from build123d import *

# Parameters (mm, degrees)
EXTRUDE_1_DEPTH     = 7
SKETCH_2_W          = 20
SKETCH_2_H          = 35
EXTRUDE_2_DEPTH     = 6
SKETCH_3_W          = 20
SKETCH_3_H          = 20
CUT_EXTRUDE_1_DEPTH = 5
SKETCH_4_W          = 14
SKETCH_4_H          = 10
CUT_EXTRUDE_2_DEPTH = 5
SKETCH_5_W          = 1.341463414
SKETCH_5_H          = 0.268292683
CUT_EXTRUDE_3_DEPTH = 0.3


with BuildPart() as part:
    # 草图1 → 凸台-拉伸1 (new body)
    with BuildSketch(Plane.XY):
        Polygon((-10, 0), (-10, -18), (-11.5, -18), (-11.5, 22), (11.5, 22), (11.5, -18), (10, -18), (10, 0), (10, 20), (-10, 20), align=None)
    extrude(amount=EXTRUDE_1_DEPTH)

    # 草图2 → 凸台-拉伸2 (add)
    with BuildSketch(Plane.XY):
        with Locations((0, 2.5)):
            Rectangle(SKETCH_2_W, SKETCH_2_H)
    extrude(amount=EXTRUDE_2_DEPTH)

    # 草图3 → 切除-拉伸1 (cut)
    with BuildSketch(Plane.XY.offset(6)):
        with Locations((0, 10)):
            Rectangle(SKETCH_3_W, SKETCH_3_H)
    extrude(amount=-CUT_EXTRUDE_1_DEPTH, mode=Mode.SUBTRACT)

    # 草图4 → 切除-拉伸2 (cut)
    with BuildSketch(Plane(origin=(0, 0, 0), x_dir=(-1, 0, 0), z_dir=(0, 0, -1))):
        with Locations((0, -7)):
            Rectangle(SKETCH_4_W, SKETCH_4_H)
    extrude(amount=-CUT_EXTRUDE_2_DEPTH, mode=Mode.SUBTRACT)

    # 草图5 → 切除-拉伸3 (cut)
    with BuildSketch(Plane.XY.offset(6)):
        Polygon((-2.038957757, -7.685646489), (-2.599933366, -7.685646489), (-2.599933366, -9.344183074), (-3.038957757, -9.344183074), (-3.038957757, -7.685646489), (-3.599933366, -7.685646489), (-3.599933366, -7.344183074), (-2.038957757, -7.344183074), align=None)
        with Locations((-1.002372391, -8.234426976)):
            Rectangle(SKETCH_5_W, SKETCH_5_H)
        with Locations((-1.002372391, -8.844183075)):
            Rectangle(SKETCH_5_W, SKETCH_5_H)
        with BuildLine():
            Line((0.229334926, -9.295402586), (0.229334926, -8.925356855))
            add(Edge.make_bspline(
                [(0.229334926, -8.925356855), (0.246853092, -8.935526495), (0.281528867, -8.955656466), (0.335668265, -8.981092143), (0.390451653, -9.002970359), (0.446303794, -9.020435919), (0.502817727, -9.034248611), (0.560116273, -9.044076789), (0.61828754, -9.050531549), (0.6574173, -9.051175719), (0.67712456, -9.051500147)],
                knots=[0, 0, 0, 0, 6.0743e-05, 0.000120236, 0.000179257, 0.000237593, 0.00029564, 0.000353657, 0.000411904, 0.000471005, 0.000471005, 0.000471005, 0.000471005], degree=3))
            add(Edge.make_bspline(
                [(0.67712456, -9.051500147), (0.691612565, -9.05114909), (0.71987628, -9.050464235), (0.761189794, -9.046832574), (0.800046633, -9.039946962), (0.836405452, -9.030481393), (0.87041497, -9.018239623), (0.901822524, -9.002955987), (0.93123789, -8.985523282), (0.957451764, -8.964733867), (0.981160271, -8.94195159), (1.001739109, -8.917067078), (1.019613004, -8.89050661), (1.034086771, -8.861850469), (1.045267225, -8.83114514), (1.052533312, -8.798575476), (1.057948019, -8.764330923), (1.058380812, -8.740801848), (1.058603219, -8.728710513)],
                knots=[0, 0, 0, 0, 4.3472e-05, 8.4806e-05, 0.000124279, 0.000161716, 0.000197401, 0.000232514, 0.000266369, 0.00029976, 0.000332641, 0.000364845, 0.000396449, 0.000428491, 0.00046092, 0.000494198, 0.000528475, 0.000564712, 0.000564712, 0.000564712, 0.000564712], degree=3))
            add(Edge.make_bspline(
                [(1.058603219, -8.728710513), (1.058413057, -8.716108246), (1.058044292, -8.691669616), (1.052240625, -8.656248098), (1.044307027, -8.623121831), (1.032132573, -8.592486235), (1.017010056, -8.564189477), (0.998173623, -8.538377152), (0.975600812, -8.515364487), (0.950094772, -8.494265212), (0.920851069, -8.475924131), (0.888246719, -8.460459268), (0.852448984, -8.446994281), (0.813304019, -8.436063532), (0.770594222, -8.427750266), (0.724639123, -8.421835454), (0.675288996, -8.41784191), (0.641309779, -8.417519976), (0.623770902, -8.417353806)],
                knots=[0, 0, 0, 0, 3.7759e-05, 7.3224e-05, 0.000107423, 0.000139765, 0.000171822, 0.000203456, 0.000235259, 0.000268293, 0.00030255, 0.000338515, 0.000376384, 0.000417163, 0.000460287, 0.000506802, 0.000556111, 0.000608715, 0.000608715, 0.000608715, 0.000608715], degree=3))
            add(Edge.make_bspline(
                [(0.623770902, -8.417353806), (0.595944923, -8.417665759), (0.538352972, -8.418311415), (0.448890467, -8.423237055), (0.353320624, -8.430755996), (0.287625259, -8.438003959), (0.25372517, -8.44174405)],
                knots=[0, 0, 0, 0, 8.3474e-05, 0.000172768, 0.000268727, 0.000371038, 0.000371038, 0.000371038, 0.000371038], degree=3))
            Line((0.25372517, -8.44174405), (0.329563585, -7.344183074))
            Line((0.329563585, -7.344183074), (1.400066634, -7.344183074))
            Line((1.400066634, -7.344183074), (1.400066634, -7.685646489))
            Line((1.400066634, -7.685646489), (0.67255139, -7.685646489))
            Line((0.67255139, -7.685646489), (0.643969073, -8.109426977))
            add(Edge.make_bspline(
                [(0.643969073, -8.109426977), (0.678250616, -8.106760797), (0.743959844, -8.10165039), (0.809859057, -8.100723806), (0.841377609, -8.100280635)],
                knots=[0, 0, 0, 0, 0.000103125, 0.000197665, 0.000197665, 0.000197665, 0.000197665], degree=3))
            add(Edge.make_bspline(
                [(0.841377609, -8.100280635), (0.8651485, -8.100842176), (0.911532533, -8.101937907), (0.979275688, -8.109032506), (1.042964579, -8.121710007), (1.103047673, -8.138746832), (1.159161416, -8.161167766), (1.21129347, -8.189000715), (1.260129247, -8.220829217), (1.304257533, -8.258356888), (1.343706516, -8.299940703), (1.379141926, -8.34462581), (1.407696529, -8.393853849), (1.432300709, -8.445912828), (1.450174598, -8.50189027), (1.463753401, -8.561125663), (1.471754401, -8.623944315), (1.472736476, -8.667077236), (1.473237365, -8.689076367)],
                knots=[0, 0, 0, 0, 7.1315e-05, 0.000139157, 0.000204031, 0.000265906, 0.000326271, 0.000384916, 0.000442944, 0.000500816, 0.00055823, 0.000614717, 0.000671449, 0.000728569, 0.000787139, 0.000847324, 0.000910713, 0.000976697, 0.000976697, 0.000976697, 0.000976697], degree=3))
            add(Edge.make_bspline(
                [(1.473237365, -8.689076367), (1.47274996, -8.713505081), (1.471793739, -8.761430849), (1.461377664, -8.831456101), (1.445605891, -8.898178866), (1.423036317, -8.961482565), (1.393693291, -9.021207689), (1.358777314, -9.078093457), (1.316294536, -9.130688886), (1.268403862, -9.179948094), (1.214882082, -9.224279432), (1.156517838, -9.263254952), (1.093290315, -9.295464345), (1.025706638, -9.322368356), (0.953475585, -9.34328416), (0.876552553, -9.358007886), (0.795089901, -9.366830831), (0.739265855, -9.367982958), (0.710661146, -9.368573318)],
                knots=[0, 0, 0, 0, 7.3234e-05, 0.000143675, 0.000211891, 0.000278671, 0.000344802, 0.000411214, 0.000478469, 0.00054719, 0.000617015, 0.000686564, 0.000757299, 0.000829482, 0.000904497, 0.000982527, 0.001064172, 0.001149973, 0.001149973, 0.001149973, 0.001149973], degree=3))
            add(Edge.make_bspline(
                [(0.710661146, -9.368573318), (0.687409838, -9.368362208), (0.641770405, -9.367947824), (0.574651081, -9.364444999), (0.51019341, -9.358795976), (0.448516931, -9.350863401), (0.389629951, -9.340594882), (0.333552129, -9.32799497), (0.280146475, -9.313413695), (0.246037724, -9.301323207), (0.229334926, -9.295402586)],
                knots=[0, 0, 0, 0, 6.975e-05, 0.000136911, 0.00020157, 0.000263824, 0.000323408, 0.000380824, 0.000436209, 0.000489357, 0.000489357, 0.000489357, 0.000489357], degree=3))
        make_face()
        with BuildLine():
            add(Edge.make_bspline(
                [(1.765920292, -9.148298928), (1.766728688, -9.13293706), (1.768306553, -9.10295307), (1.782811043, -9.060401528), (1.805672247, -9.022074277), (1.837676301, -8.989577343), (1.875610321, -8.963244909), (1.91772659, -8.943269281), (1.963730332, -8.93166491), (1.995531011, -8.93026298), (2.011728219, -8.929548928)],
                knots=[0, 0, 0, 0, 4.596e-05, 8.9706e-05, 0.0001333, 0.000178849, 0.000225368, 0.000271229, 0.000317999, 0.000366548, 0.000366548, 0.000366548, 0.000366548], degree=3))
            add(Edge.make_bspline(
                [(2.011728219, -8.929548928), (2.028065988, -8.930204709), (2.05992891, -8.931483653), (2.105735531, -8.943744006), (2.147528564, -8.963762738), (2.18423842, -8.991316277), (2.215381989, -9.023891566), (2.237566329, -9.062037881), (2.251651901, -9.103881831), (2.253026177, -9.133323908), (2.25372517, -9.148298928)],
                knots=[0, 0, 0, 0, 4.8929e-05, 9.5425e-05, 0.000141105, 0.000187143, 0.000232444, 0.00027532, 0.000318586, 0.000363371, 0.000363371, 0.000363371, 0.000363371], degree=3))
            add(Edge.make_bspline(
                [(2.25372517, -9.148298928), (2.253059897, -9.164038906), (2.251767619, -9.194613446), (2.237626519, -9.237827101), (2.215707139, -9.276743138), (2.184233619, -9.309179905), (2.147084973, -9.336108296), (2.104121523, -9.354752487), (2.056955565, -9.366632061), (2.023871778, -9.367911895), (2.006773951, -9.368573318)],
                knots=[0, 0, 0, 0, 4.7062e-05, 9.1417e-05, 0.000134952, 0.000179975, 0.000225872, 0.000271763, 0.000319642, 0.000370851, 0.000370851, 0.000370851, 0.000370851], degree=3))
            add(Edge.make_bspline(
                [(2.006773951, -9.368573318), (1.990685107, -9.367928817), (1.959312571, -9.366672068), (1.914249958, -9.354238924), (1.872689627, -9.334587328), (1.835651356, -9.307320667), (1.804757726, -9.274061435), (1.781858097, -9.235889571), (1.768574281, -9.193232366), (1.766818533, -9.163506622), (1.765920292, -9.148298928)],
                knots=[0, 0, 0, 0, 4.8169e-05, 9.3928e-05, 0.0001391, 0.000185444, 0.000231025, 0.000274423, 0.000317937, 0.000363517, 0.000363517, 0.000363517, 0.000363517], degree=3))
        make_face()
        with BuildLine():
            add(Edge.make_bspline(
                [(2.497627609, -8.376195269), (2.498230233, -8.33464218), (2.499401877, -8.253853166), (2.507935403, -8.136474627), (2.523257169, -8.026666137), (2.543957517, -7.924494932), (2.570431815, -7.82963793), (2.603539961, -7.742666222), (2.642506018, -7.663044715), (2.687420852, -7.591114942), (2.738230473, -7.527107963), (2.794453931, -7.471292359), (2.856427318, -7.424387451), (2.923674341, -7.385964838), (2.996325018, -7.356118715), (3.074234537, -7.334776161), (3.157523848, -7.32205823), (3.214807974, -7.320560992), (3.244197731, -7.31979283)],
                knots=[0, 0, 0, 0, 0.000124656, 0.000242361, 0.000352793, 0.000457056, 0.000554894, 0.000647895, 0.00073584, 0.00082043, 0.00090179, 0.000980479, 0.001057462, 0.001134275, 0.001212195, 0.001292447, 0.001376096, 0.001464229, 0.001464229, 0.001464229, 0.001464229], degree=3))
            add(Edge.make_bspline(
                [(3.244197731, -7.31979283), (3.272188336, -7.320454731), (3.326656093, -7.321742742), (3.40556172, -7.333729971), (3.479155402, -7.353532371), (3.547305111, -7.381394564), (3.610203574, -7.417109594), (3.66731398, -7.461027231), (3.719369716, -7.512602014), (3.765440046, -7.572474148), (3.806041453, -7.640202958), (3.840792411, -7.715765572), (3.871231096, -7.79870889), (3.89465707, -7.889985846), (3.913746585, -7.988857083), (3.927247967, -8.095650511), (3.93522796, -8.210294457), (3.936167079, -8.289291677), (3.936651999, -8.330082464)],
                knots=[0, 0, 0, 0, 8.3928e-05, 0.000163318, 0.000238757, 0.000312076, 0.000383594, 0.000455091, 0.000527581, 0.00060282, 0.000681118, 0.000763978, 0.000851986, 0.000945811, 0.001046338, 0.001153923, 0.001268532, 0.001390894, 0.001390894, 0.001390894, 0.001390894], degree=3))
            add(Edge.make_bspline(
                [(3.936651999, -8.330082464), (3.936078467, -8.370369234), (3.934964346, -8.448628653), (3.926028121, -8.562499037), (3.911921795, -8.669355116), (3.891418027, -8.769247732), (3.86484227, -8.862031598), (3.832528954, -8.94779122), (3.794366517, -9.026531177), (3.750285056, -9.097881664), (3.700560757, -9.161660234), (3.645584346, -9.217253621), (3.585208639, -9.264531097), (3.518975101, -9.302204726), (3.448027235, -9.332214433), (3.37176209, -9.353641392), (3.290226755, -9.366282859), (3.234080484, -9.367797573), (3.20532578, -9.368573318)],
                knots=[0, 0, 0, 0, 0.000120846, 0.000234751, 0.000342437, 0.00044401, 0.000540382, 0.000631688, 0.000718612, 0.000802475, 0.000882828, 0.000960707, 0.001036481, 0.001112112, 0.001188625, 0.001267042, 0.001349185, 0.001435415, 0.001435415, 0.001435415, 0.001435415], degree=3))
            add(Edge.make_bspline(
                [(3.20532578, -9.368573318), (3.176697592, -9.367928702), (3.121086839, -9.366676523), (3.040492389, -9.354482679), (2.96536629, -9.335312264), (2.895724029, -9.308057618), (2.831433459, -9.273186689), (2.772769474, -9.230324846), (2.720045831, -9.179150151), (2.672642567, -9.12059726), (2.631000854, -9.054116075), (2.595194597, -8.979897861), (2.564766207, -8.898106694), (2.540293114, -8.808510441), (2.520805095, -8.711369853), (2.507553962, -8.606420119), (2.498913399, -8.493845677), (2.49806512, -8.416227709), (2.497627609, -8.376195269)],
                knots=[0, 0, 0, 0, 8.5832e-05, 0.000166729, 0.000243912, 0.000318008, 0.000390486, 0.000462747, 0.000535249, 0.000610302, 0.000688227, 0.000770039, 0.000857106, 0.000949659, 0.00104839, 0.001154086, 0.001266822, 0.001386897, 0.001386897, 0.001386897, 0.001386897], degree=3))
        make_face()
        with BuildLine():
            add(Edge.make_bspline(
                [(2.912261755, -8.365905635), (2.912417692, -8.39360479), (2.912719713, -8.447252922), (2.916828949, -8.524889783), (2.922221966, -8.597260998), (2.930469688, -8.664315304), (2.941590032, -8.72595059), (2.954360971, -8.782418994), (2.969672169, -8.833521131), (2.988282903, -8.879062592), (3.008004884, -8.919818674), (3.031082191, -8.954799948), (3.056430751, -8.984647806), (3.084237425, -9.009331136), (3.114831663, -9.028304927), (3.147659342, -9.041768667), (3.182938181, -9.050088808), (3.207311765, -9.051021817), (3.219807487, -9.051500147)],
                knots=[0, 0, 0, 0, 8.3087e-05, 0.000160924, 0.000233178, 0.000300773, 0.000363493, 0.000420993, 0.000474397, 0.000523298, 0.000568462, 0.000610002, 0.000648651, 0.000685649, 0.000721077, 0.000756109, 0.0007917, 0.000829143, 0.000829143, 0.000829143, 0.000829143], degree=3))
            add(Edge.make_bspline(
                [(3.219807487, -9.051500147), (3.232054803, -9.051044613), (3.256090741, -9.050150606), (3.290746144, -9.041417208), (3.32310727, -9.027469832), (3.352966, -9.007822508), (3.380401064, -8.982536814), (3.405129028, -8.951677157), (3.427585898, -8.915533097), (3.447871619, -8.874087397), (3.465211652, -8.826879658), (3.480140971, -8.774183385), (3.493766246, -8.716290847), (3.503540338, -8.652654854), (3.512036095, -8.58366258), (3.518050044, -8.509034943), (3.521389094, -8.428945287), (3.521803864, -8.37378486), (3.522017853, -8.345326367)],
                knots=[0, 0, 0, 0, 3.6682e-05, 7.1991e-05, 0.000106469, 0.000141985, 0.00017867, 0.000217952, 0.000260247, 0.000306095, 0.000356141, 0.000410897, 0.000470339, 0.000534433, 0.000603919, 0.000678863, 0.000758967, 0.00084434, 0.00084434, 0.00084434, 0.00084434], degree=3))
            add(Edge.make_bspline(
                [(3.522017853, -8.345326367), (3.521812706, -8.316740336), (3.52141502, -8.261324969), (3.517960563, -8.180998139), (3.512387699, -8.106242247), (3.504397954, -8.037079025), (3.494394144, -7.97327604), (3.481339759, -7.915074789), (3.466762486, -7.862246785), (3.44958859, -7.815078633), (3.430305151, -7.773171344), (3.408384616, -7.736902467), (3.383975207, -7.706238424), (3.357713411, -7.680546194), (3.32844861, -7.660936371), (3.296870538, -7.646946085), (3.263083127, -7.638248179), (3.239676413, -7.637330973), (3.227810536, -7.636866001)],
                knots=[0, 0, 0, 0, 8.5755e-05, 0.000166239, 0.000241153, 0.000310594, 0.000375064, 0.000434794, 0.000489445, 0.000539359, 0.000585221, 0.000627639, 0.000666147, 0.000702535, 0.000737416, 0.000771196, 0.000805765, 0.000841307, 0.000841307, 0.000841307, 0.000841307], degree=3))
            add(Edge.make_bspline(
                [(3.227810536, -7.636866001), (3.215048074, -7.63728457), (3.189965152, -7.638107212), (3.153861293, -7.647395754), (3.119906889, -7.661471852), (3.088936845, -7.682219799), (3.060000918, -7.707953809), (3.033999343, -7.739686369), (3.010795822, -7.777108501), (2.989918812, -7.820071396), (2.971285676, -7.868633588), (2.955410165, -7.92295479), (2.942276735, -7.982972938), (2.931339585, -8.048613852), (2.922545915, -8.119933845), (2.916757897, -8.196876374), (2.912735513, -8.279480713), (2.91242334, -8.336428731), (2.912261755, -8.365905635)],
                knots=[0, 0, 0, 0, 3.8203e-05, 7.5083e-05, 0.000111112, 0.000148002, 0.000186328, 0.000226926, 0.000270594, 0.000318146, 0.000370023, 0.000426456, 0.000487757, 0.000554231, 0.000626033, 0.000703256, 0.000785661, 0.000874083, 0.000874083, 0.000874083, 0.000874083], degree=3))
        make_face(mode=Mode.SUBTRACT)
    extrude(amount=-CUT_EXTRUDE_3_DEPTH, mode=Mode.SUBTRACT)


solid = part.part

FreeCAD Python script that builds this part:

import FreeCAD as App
import Part
import Sketcher
Q = App.Units.Quantity


def add_polygon(sketch, points):
    """Adds a closed chain of lines whose ends are joined by coincident constraints."""
    first, n = sketch.GeometryCount, len(points)
    for a, b in zip(points, points[1:] + points[:1]):
        sketch.addGeometry(Part.LineSegment(App.Vector(*a, 0), App.Vector(*b, 0)), False)
    for i in range(n):
        sketch.addConstraint(Sketcher.Constraint("Coincident", first + i, 2, first + (i + 1) % n, 1))

doc = App.newDocument("Part")
body = doc.addObject("PartDesign::Body", "Body")

# Sketch on XY plane
sketch1 = body.newObject("Sketcher::SketchObject", "Sketch")
sketch1.AttachmentSupport = (doc.getObject("XY_Plane"), [""])
sketch1.MapMode = "FlatFace"
add_polygon(sketch1, [(-10, -18), (-10, 20), (10, 20), (10, -18), (11.5, -18), (11.5, 22), (-11.5, 22), (-11.5, -18)])  # lines 0-7
sketch1.addConstraint([
    Sketcher.Constraint("Vertical", 0),
    Sketcher.Constraint("Horizontal", 1),
    Sketcher.Constraint("Vertical", 2),
    Sketcher.Constraint("Horizontal", 3),
    Sketcher.Constraint("Vertical", 4),
    Sketcher.Constraint("Horizontal", 5),
    Sketcher.Constraint("Vertical", 6),
    Sketcher.Constraint("Horizontal", 7),
    Sketcher.Constraint("Symmetric", 3, 2, 6, 2, -2),
    Sketcher.Constraint("Equal", 3, 7),
    Sketcher.Constraint("DistanceX", 1, 1, 1, 2, Q("20 mm")),
    Sketcher.Constraint("DistanceX", 5, 2, 5, 1, Q("23 mm")),
    Sketcher.Constraint("DistanceY", 0, 1, 0, 2, Q("38 mm")),
    Sketcher.Constraint("DistanceY", 4, 1, 4, 2, Q("40 mm")),
    Sketcher.Constraint("DistanceY", -1, 1, 0, 2, Q("20 mm")),
])
pad1 = body.newObject("PartDesign::Pad", "Pad")
pad1.Profile = sketch1
pad1.Length = 7

# Sketch on XY plane
sketch2 = body.newObject("Sketcher::SketchObject", "Sketch001")
sketch2.AttachmentSupport = (doc.getObject("XY_Plane"), [""])
sketch2.MapMode = "FlatFace"
add_polygon(sketch2, [(-10, 20), (-10, -15), (10, -15), (10, 20)])  # lines 0-3
sketch2.addConstraint([
    Sketcher.Constraint("Vertical", 0),
    Sketcher.Constraint("Horizontal", 1),
    Sketcher.Constraint("Vertical", 2),
    Sketcher.Constraint("Horizontal", 3),
    Sketcher.Constraint("DistanceX", 1, 1, 1, 2, Q("20 mm")),
    Sketcher.Constraint("DistanceY", 0, 2, 0, 1, Q("35 mm")),
    Sketcher.Constraint("DistanceX", 0, 2, -1, 1, Q("10 mm")),
    Sketcher.Constraint("DistanceY", 0, 2, -1, 1, Q("15 mm")),
])
pad2 = body.newObject("PartDesign::Pad", "Pad001")
pad2.Profile = sketch2
pad2.Length = 6

# Sketch on XY plane
sketch3 = body.newObject("Sketcher::SketchObject", "Sketch002")
sketch3.AttachmentSupport = (doc.getObject("XY_Plane"), [""])
sketch3.MapMode = "FlatFace"
sketch3.AttachmentOffset = App.Placement(App.Vector(0, 0, 6), App.Rotation())
add_polygon(sketch3, [(-10, 20), (-10, 0), (10, 0), (10, 20)])  # lines 0-3
sketch3.addConstraint([
    Sketcher.Constraint("Vertical", 0),
    Sketcher.Constraint("Horizontal", 1),
    Sketcher.Constraint("Vertical", 2),
    Sketcher.Constraint("Horizontal", 3),
    Sketcher.Constraint("Symmetric", 0, 2, 1, 2, -1, 1),
    Sketcher.Constraint("Equal", 3, 0),
    Sketcher.Constraint("DistanceX", 1, 1, 1, 2, Q("20 mm")),
])
pocket1 = body.newObject("PartDesign::Pocket", "Pocket")
pocket1.Profile = sketch3
pocket1.Length = 5

# Sketch on XY plane
sketch4 = body.newObject("Sketcher::SketchObject", "Sketch003")
sketch4.AttachmentSupport = (doc.getObject("XY_Plane"), [""])
sketch4.MapMode = "FlatFace"
add_polygon(sketch4, [(7, -2), (7, -12), (-7, -12), (-7, -2)])  # lines 0-3
sketch4.addConstraint([
    Sketcher.Constraint("Vertical", 0),
    Sketcher.Constraint("Horizontal", 1),
    Sketcher.Constraint("Vertical", 2),
    Sketcher.Constraint("Horizontal", 3),
    Sketcher.Constraint("DistanceX", 1, 2, 1, 1, Q("14 mm")),
    Sketcher.Constraint("DistanceY", 0, 2, 0, 1, Q("10 mm")),
    Sketcher.Constraint("DistanceX", -1, 1, 0, 2, Q("7 mm")),
    Sketcher.Constraint("DistanceY", 0, 2, -1, 1, Q("12 mm")),
])
pocket2 = body.newObject("PartDesign::Pocket", "Pocket001")
pocket2.Profile = sketch4
pocket2.Length = 5
pocket2.Reversed = True

# Sketch on XY plane
sketch5 = body.newObject("Sketcher::SketchObject", "Sketch004")
sketch5.AttachmentSupport = (doc.getObject("XY_Plane"), [""])
sketch5.MapMode = "FlatFace"
sketch5.AttachmentOffset = App.Placement(App.Vector(0, 0, 6), App.Rotation())
add_polygon(sketch5, [(-2.599933, -7.685646), (-2.038958, -7.685646), (-2.038958, -7.344183), (-3.599933, -7.344183), (-3.599933, -7.685646), (-3.038958, -7.685646), (-3.038958, -9.344183), (-2.599933, -9.344183)])  # lines 0-7
add_polygon(sketch5, [(-1.673104, -8.100281), (-1.673104, -8.368573), (-0.331641, -8.368573), (-0.331641, -8.100281)])  # lines 8-11
add_polygon(sketch5, [(-1.673104, -8.710037), (-1.673104, -8.978329), (-0.331641, -8.978329), (-0.331641, -8.710037)])  # lines 12-15
sketch5.addGeometry(Part.LineSegment(App.Vector(0.229335, -8.925357, 0), App.Vector(0.229335, -9.295403, 0)), False)  # 16
sketch5.addGeometry(Part.BSplineCurve([App.Vector(0.710661, -9.368573, 0), App.Vector(0.68741, -9.368362, 0), App.Vector(0.64177, -9.367948, 0), App.Vector(0.574651, -9.364445, 0), App.Vector(0.510193, -9.358796, 0), App.Vector(0.448517, -9.350863, 0), App.Vector(0.38963, -9.340595, 0), App.Vector(0.333552, -9.327995, 0), App.Vector(0.280146, -9.313414, 0), App.Vector(0.246038, -9.301323, 0), App.Vector(0.229335, -9.295403, 0)], [4, 1, 1, 1, 1, 1, 1, 1, 4], [0, 0.00006975, 0.000136911, 0.00020157, 0.000263824, 0.000323408, 0.000380824, 0.000436209, 0.000489357], False, 3, [1, 1, 1, 1, 1, 1, 1, 1, 1, 1, 1], False), False)  # 17
sketch5.addGeometry(Part.BSplineCurve([App.Vector(1.473237, -8.689076, 0), App.Vector(1.47275, -8.713505, 0), App.Vector(1.471794, -8.761431, 0), App.Vector(1.461378, -8.831456, 0), App.Vector(1.445606, -8.898179, 0), App.Vector(1.423036, -8.961483, 0), App.Vector(1.393693, -9.021208, 0), App.Vector(1.358777, -9.078093, 0), App.Vector(1.316295, -9.130689, 0), App.Vector(1.268404, -9.179948, 0), App.Vector(1.214882, -9.224279, 0), App.Vector(1.156518, -9.263255, 0), App.Vector(1.09329, -9.295464, 0), App.Vector(1.025707, -9.322368, 0), App.Vector(0.953476, -9.343284, 0), App.Vector(0.876553, -9.358008, 0), App.Vector(0.79509, -9.366831, 0), App.Vector(0.739266, -9.367983, 0), App.Vector(0.710661, -9.368573, 0)], [4, 1, 1, 1, 1, 1, 1, 1, 1, 1, 1, 1, 1, 1, 1, 1, 4], [0, 0.000073234, 0.000143675, 0.000211891, 0.000278671, 0.000344802, 0.000411214, 0.000478469, 0.00054719, 0.000617015, 0.000686564, 0.000757299, 0.000829482, 0.000904497, 0.000982527, 0.001064172, 0.001149973], False, 3, [1, 1, 1, 1, 1, 1, 1, 1, 1, 1, 1, 1, 1, 1, 1, 1, 1, 1, 1], False), False)  # 18
sketch5.addGeometry(Part.BSplineCurve([App.Vector(0.841378, -8.100281, 0), App.Vector(0.865148, -8.100842, 0), App.Vector(0.911533, -8.101938, 0), App.Vector(0.979276, -8.109033, 0), App.Vector(1.042965, -8.12171, 0), App.Vector(1.103048, -8.138747, 0), App.Vector(1.159161, -8.161168, 0), App.Vector(1.211293, -8.189001, 0), App.Vector(1.260129, -8.220829, 0), App.Vector(1.304258, -8.258357, 0), App.Vector(1.343707, -8.299941, 0), App.Vector(1.379142, -8.344626, 0), App.Vector(1.407697, -8.393854, 0), App.Vector(1.432301, -8.445913, 0), App.Vector(1.450175, -8.50189, 0), App.Vector(1.463753, -8.561126, 0), App.Vector(1.471754, -8.623944, 0), App.Vector(1.472736, -8.667077, 0), App.Vector(1.473237, -8.689076, 0)], [4, 1, 1, 1, 1, 1, 1, 1, 1, 1, 1, 1, 1, 1, 1, 1, 4], [0, 0.000071315, 0.000139157, 0.000204031, 0.000265906, 0.000326271, 0.000384916, 0.000442944, 0.000500816, 0.00055823, 0.000614717, 0.000671449, 0.000728569, 0.000787139, 0.000847324, 0.000910713, 0.000976697], False, 3, [1, 1, 1, 1, 1, 1, 1, 1, 1, 1, 1, 1, 1, 1, 1, 1, 1, 1, 1], False), False)  # 19
sketch5.addGeometry(Part.BSplineCurve([App.Vector(0.643969, -8.109427, 0), App.Vector(0.678251, -8.106761, 0), App.Vector(0.74396, -8.10165, 0), App.Vector(0.809859, -8.100724, 0), App.Vector(0.841378, -8.100281, 0)], [4, 1, 4], [0, 0.000103125, 0.000197665], False, 3, [1, 1, 1, 1, 1], False), False)  # 20
sketch5.addGeometry(Part.LineSegment(App.Vector(0.643969, -8.109427, 0), App.Vector(0.672551, -7.685646, 0)), False)  # 21
sketch5.addGeometry(Part.LineSegment(App.Vector(0.672551, -7.685646, 0), App.Vector(1.400067, -7.685646, 0)), False)  # 22
sketch5.addGeometry(Part.LineSegment(App.Vector(1.400067, -7.685646, 0), App.Vector(1.400067, -7.344183, 0)), False)  # 23
sketch5.addGeometry(Part.LineSegment(App.Vector(1.400067, -7.344183, 0), App.Vector(0.329564, -7.344183, 0)), False)  # 24
sketch5.addGeometry(Part.LineSegment(App.Vector(0.329564, -7.344183, 0), App.Vector(0.253725, -8.441744, 0)), False)  # 25
sketch5.addGeometry(Part.BSplineCurve([App.Vector(0.623771, -8.417354, 0), App.Vector(0.595945, -8.417666, 0), App.Vector(0.538353, -8.418311, 0), App.Vector(0.44889, -8.423237, 0), App.Vector(0.353321, -8.430756, 0), App.Vector(0.287625, -8.438004, 0), App.Vector(0.253725, -8.441744, 0)], [4, 1, 1, 1, 4], [0, 0.000083474, 0.000172768, 0.000268727, 0.000371038], False, 3, [1, 1, 1, 1, 1, 1, 1], False), False)  # 26
sketch5.addGeometry(Part.BSplineCurve([App.Vector(1.058603, -8.728711, 0), App.Vector(1.058413, -8.716108, 0), App.Vector(1.058044, -8.69167, 0), App.Vector(1.052241, -8.656248, 0), App.Vector(1.044307, -8.623122, 0), App.Vector(1.032133, -8.592486, 0), App.Vector(1.01701, -8.564189, 0), App.Vector(0.998174, -8.538377, 0), App.Vector(0.975601, -8.515364, 0), App.Vector(0.950095, -8.494265, 0), App.Vector(0.920851, -8.475924, 0), App.Vector(0.888247, -8.460459, 0), App.Vector(0.852449, -8.446994, 0), App.Vector(0.813304, -8.436064, 0), App.Vector(0.770594, -8.42775, 0), App.Vector(0.724639, -8.421835, 0), App.Vector(0.675289, -8.417842, 0), App.Vector(0.64131, -8.41752, 0), App.Vector(0.623771, -8.417354, 0)], [4, 1, 1, 1, 1, 1, 1, 1, 1, 1, 1, 1, 1, 1, 1, 1, 4], [0, 0.000037759, 0.000073224, 0.000107423, 0.000139765, 0.000171822, 0.000203456, 0.000235259, 0.000268293, 0.00030255, 0.000338515, 0.000376384, 0.000417163, 0.000460287, 0.000506802, 0.000556111, 0.000608715], False, 3, [1, 1, 1, 1, 1, 1, 1, 1, 1, 1, 1, 1, 1, 1, 1, 1, 1, 1, 1], False), False)  # 27
sketch5.addGeometry(Part.BSplineCurve([App.Vector(0.677125, -9.0515, 0), App.Vector(0.691613, -9.051149, 0), App.Vector(0.719876, -9.050464, 0), App.Vector(0.76119, -9.046833, 0), App.Vector(0.800047, -9.039947, 0), App.Vector(0.836405, -9.030481, 0), App.Vector(0.870415, -9.01824, 0), App.Vector(0.901823, -9.002956, 0), App.Vector(0.931238, -8.985523, 0), App.Vector(0.957452, -8.964734, 0), App.Vector(0.98116, -8.941952, 0), App.Vector(1.001739, -8.917067, 0), App.Vector(1.019613, -8.890507, 0), App.Vector(1.034087, -8.86185, 0), App.Vector(1.045267, -8.831145, 0), App.Vector(1.052533, -8.798575, 0), App.Vector(1.057948, -8.764331, 0), App.Vector(1.058381, -8.740802, 0), App.Vector(1.058603, -8.728711, 0)], [4, 1, 1, 1, 1, 1, 1, 1, 1, 1, 1, 1, 1, 1, 1, 1, 4], [0, 0.000043472, 0.000084806, 0.000124279, 0.000161716, 0.000197401, 0.000232514, 0.000266369, 0.00029976, 0.000332641, 0.000364845, 0.000396449, 0.000428491, 0.00046092, 0.000494198, 0.000528475, 0.000564712], False, 3, [1, 1, 1, 1, 1, 1, 1, 1, 1, 1, 1, 1, 1, 1, 1, 1, 1, 1, 1], False), False)  # 28
sketch5.addGeometry(Part.BSplineCurve([App.Vector(0.229335, -8.925357, 0), App.Vector(0.246853, -8.935526, 0), App.Vector(0.281529, -8.955656, 0), App.Vector(0.335668, -8.981092, 0), App.Vector(0.390452, -9.00297, 0), App.Vector(0.446304, -9.020436, 0), App.Vector(0.502818, -9.034249, 0), App.Vector(0.560116, -9.044077, 0), App.Vector(0.618288, -9.050532, 0), App.Vector(0.657417, -9.051176, 0), App.Vector(0.677125, -9.0515, 0)], [4, 1, 1, 1, 1, 1, 1, 1, 4], [0, 0.000060743, 0.000120236, 0.000179257, 0.000237593, 0.00029564, 0.000353657, 0.000411904, 0.000471005], False, 3, [1, 1, 1, 1, 1, 1, 1, 1, 1, 1, 1], False), False)  # 29
sketch5.addGeometry(Part.BSplineCurve([App.Vector(1.76592, -9.148299, 0), App.Vector(1.766729, -9.132937, 0), App.Vector(1.768307, -9.102953, 0), App.Vector(1.782811, -9.060402, 0), App.Vector(1.805672, -9.022074, 0), App.Vector(1.837676, -8.989577, 0), App.Vector(1.87561, -8.963245, 0), App.Vector(1.917727, -8.943269, 0), App.Vector(1.96373, -8.931665, 0), App.Vector(1.995531, -8.930263, 0), App.Vector(2.011728, -8.929549, 0)], [4, 1, 1, 1, 1, 1, 1, 1, 4], [0, 0.00004596, 0.000089706, 0.0001333, 0.000178849, 0.000225368, 0.000271229, 0.000317999, 0.000366548], False, 3, [1, 1, 1, 1, 1, 1, 1, 1, 1, 1, 1], False), False)  # 30
sketch5.addGeometry(Part.BSplineCurve([App.Vector(2.006774, -9.368573, 0), App.Vector(1.990685, -9.367929, 0), App.Vector(1.959313, -9.366672, 0), App.Vector(1.91425, -9.354239, 0), App.Vector(1.87269, -9.334587, 0), App.Vector(1.835651, -9.307321, 0), App.Vector(1.804758, -9.274061, 0), App.Vector(1.781858, -9.23589, 0), App.Vector(1.768574, -9.193232, 0), App.Vector(1.766819, -9.163507, 0), App.Vector(1.76592, -9.148299, 0)], [4, 1, 1, 1, 1, 1, 1, 1, 4], [0, 0.000048169, 0.000093928, 0.0001391, 0.000185444, 0.000231025, 0.000274423, 0.000317937, 0.000363517], False, 3, [1, 1, 1, 1, 1, 1, 1, 1, 1, 1, 1], False), False)  # 31
sketch5.addGeometry(Part.BSplineCurve([App.Vector(2.253725, -9.148299, 0), App.Vector(2.25306, -9.164039, 0), App.Vector(2.251768, -9.194613, 0), App.Vector(2.237627, -9.237827, 0), App.Vector(2.215707, -9.276743, 0), App.Vector(2.184234, -9.30918, 0), App.Vector(2.147085, -9.336108, 0), App.Vector(2.104122, -9.354752, 0), App.Vector(2.056956, -9.366632, 0), App.Vector(2.023872, -9.367912, 0), App.Vector(2.006774, -9.368573, 0)], [4, 1, 1, 1, 1, 1, 1, 1, 4], [0, 0.000047062, 0.000091417, 0.000134952, 0.000179975, 0.000225872, 0.000271763, 0.000319642, 0.000370851], False, 3, [1, 1, 1, 1, 1, 1, 1, 1, 1, 1, 1], False), False)  # 32
sketch5.addGeometry(Part.BSplineCurve([App.Vector(2.011728, -8.929549, 0), App.Vector(2.028066, -8.930205, 0), App.Vector(2.059929, -8.931484, 0), App.Vector(2.105736, -8.943744, 0), App.Vector(2.147529, -8.963763, 0), App.Vector(2.184238, -8.991316, 0), App.Vector(2.215382, -9.023892, 0), App.Vector(2.237566, -9.062038, 0), App.Vector(2.251652, -9.103882, 0), App.Vector(2.253026, -9.133324, 0), App.Vector(2.253725, -9.148299, 0)], [4, 1, 1, 1, 1, 1, 1, 1, 4], [0, 0.000048929, 0.000095425, 0.000141105, 0.000187143, 0.000232444, 0.00027532, 0.000318586, 0.000363371], False, 3, [1, 1, 1, 1, 1, 1, 1, 1, 1, 1, 1], False), False)  # 33
sketch5.addGeometry(Part.BSplineCurve([App.Vector(2.497628, -8.376195, 0), App.Vector(2.49823, -8.334642, 0), App.Vector(2.499402, -8.253853, 0), App.Vector(2.507935, -8.136475, 0), App.Vector(2.523257, -8.026666, 0), App.Vector(2.543958, -7.924495, 0), App.Vector(2.570432, -7.829638, 0), App.Vector(2.60354, -7.742666, 0), App.Vector(2.642506, -7.663045, 0), App.Vector(2.687421, -7.591115, 0), App.Vector(2.73823, -7.527108, 0), App.Vector(2.794454, -7.471292, 0), App.Vector(2.856427, -7.424387, 0), App.Vector(2.923674, -7.385965, 0), App.Vector(2.996325, -7.356119, 0), App.Vector(3.074235, -7.334776, 0), App.Vector(3.157524, -7.322058, 0), App.Vector(3.214808, -7.320561, 0), App.Vector(3.244198, -7.319793, 0)], [4, 1, 1, 1, 1, 1, 1, 1, 1, 1, 1, 1, 1, 1, 1, 1, 4], [0, 0.000124656, 0.000242361, 0.000352793, 0.000457056, 0.000554894, 0.000647895, 0.00073584, 0.00082043, 0.00090179, 0.000980479, 0.001057462, 0.001134275, 0.001212195, 0.001292447, 0.001376096, 0.001464229], False, 3, [1, 1, 1, 1, 1, 1, 1, 1, 1, 1, 1, 1, 1, 1, 1, 1, 1, 1, 1], False), False)  # 34
sketch5.addGeometry(Part.BSplineCurve([App.Vector(3.205326, -9.368573, 0), App.Vector(3.176698, -9.367929, 0), App.Vector(3.121087, -9.366677, 0), App.Vector(3.040492, -9.354483, 0), App.Vector(2.965366, -9.335312, 0), App.Vector(2.895724, -9.308058, 0), App.Vector(2.831433, -9.273187, 0), App.Vector(2.772769, -9.230325, 0), App.Vector(2.720046, -9.17915, 0), App.Vector(2.672643, -9.120597, 0), App.Vector(2.631001, -9.054116, 0), App.Vector(2.595195, -8.979898, 0), App.Vector(2.564766, -8.898107, 0), App.Vector(2.540293, -8.80851, 0), App.Vector(2.520805, -8.71137, 0), App.Vector(2.507554, -8.60642, 0), App.Vector(2.498913, -8.493846, 0), App.Vector(2.498065, -8.416228, 0), App.Vector(2.497628, -8.376195, 0)], [4, 1, 1, 1, 1, 1, 1, 1, 1, 1, 1, 1, 1, 1, 1, 1, 4], [0, 0.000085832, 0.000166729, 0.000243912, 0.000318008, 0.000390486, 0.000462747, 0.000535249, 0.000610302, 0.000688227, 0.000770039, 0.000857106, 0.000949659, 0.00104839, 0.001154086, 0.001266822, 0.001386897], False, 3, [1, 1, 1, 1, 1, 1, 1, 1, 1, 1, 1, 1, 1, 1, 1, 1, 1, 1, 1], False), False)  # 35
sketch5.addGeometry(Part.BSplineCurve([App.Vector(3.936652, -8.330082, 0), App.Vector(3.936078, -8.370369, 0), App.Vector(3.934964, -8.448629, 0), App.Vector(3.926028, -8.562499, 0), App.Vector(3.911922, -8.669355, 0), App.Vector(3.891418, -8.769248, 0), App.Vector(3.864842, -8.862032, 0), App.Vector(3.832529, -8.947791, 0), App.Vector(3.794367, -9.026531, 0), App.Vector(3.750285, -9.097882, 0), App.Vector(3.700561, -9.16166, 0), App.Vector(3.645584, -9.217254, 0), App.Vector(3.585209, -9.264531, 0), App.Vector(3.518975, -9.302205, 0), App.Vector(3.448027, -9.332214, 0), App.Vector(3.371762, -9.353641, 0), App.Vector(3.290227, -9.366283, 0), App.Vector(3.23408, -9.367798, 0), App.Vector(3.205326, -9.368573, 0)], [4, 1, 1, 1, 1, 1, 1, 1, 1, 1, 1, 1, 1, 1, 1, 1, 4], [0, 0.000120846, 0.000234751, 0.000342437, 0.00044401, 0.000540382, 0.000631688, 0.000718612, 0.000802475, 0.000882828, 0.000960707, 0.001036481, 0.001112112, 0.001188625, 0.001267042, 0.001349185, 0.001435415], False, 3, [1, 1, 1, 1, 1, 1, 1, 1, 1, 1, 1, 1, 1, 1, 1, 1, 1, 1, 1], False), False)  # 36
sketch5.addGeometry(Part.BSplineCurve([App.Vector(3.244198, -7.319793, 0), App.Vector(3.272188, -7.320455, 0), App.Vector(3.326656, -7.321743, 0), App.Vector(3.405562, -7.33373, 0), App.Vector(3.479155, -7.353532, 0), App.Vector(3.547305, -7.381395, 0), App.Vector(3.610204, -7.41711, 0), App.Vector(3.667314, -7.461027, 0), App.Vector(3.71937, -7.512602, 0), App.Vector(3.76544, -7.572474, 0), App.Vector(3.806041, -7.640203, 0), App.Vector(3.840792, -7.715766, 0), App.Vector(3.871231, -7.798709, 0), App.Vector(3.894657, -7.889986, 0), App.Vector(3.913747, -7.988857, 0), App.Vector(3.927248, -8.095651, 0), App.Vector(3.935228, -8.210294, 0), App.Vector(3.936167, -8.289292, 0), App.Vector(3.936652, -8.330082, 0)], [4, 1, 1, 1, 1, 1, 1, 1, 1, 1, 1, 1, 1, 1, 1, 1, 4], [0, 0.000083928, 0.000163318, 0.000238757, 0.000312076, 0.000383594, 0.000455091, 0.000527581, 0.00060282, 0.000681118, 0.000763978, 0.000851986, 0.000945811, 0.001046338, 0.001153923, 0.001268532, 0.001390894], False, 3, [1, 1, 1, 1, 1, 1, 1, 1, 1, 1, 1, 1, 1, 1, 1, 1, 1, 1, 1], False), False)  # 37
sketch5.addGeometry(Part.BSplineCurve([App.Vector(3.227811, -7.636866, 0), App.Vector(3.215048, -7.637285, 0), App.Vector(3.189965, -7.638107, 0), App.Vector(3.153861, -7.647396, 0), App.Vector(3.119907, -7.661472, 0), App.Vector(3.088937, -7.68222, 0), App.Vector(3.060001, -7.707954, 0), App.Vector(3.033999, -7.739686, 0), App.Vector(3.010796, -7.777109, 0), App.Vector(2.989919, -7.820071, 0), App.Vector(2.971286, -7.868634, 0), App.Vector(2.95541, -7.922955, 0), App.Vector(2.942277, -7.982973, 0), App.Vector(2.93134, -8.048614, 0), App.Vector(2.922546, -8.119934, 0), App.Vector(2.916758, -8.196876, 0), App.Vector(2.912736, -8.279481, 0), App.Vector(2.912423, -8.336429, 0), App.Vector(2.912262, -8.365906, 0)], [4, 1, 1, 1, 1, 1, 1, 1, 1, 1, 1, 1, 1, 1, 1, 1, 4], [0, 0.000038203, 0.000075083, 0.000111112, 0.000148002, 0.000186328, 0.000226926, 0.000270594, 0.000318146, 0.000370023, 0.000426456, 0.000487757, 0.000554231, 0.000626033, 0.000703256, 0.000785661, 0.000874083], False, 3, [1, 1, 1, 1, 1, 1, 1, 1, 1, 1, 1, 1, 1, 1, 1, 1, 1, 1, 1], False), False)  # 38
sketch5.addGeometry(Part.BSplineCurve([App.Vector(3.522018, -8.345326, 0), App.Vector(3.521813, -8.31674, 0), App.Vector(3.521415, -8.261325, 0), App.Vector(3.517961, -8.180998, 0), App.Vector(3.512388, -8.106242, 0), App.Vector(3.504398, -8.037079, 0), App.Vector(3.494394, -7.973276, 0), App.Vector(3.48134, -7.915075, 0), App.Vector(3.466762, -7.862247, 0), App.Vector(3.449589, -7.815079, 0), App.Vector(3.430305, -7.773171, 0), App.Vector(3.408385, -7.736902, 0), App.Vector(3.383975, -7.706238, 0), App.Vector(3.357713, -7.680546, 0), App.Vector(3.328449, -7.660936, 0), App.Vector(3.296871, -7.646946, 0), App.Vector(3.263083, -7.638248, 0), App.Vector(3.239676, -7.637331, 0), App.Vector(3.227811, -7.636866, 0)], [4, 1, 1, 1, 1, 1, 1, 1, 1, 1, 1, 1, 1, 1, 1, 1, 4], [0, 0.000085755, 0.000166239, 0.000241153, 0.000310594, 0.000375064, 0.000434794, 0.000489445, 0.000539359, 0.000585221, 0.000627639, 0.000666147, 0.000702535, 0.000737416, 0.000771196, 0.000805765, 0.000841307], False, 3, [1, 1, 1, 1, 1, 1, 1, 1, 1, 1, 1, 1, 1, 1, 1, 1, 1, 1, 1], False), False)  # 39
sketch5.addGeometry(Part.BSplineCurve([App.Vector(3.219807, -9.0515, 0), App.Vector(3.232055, -9.051045, 0), App.Vector(3.256091, -9.050151, 0), App.Vector(3.290746, -9.041417, 0), App.Vector(3.323107, -9.02747, 0), App.Vector(3.352966, -9.007823, 0), App.Vector(3.380401, -8.982537, 0), App.Vector(3.405129, -8.951677, 0), App.Vector(3.427586, -8.915533, 0), App.Vector(3.447872, -8.874087, 0), App.Vector(3.465212, -8.82688, 0), App.Vector(3.480141, -8.774183, 0), App.Vector(3.493766, -8.716291, 0), App.Vector(3.50354, -8.652655, 0), App.Vector(3.512036, -8.583663, 0), App.Vector(3.51805, -8.509035, 0), App.Vector(3.521389, -8.428945, 0), App.Vector(3.521804, -8.373785, 0), App.Vector(3.522018, -8.345326, 0)], [4, 1, 1, 1, 1, 1, 1, 1, 1, 1, 1, 1, 1, 1, 1, 1, 4], [0, 0.000036682, 0.000071991, 0.000106469, 0.000141985, 0.00017867, 0.000217952, 0.000260247, 0.000306095, 0.000356141, 0.000410897, 0.000470339, 0.000534433, 0.000603919, 0.000678863, 0.000758967, 0.00084434], False, 3, [1, 1, 1, 1, 1, 1, 1, 1, 1, 1, 1, 1, 1, 1, 1, 1, 1, 1, 1], False), False)  # 40
sketch5.addGeometry(Part.BSplineCurve([App.Vector(2.912262, -8.365906, 0), App.Vector(2.912418, -8.393605, 0), App.Vector(2.91272, -8.447253, 0), App.Vector(2.916829, -8.52489, 0), App.Vector(2.922222, -8.597261, 0), App.Vector(2.93047, -8.664315, 0), App.Vector(2.94159, -8.725951, 0), App.Vector(2.954361, -8.782419, 0), App.Vector(2.969672, -8.833521, 0), App.Vector(2.988283, -8.879063, 0), App.Vector(3.008005, -8.919819, 0), App.Vector(3.031082, -8.9548, 0), App.Vector(3.056431, -8.984648, 0), App.Vector(3.084237, -9.009331, 0), App.Vector(3.114832, -9.028305, 0), App.Vector(3.147659, -9.041769, 0), App.Vector(3.182938, -9.050089, 0), App.Vector(3.207312, -9.051022, 0), App.Vector(3.219807, -9.0515, 0)], [4, 1, 1, 1, 1, 1, 1, 1, 1, 1, 1, 1, 1, 1, 1, 1, 4], [0, 0.000083087, 0.000160924, 0.000233178, 0.000300773, 0.000363493, 0.000420993, 0.000474397, 0.000523298, 0.000568462, 0.000610002, 0.000648651, 0.000685649, 0.000721077, 0.000756109, 0.0007917, 0.000829143], False, 3, [1, 1, 1, 1, 1, 1, 1, 1, 1, 1, 1, 1, 1, 1, 1, 1, 1, 1, 1], False), False)  # 41
sketch5.addConstraint([
    Sketcher.Constraint("Block", 17),
    Sketcher.Constraint("Block", 18),
    Sketcher.Constraint("Block", 19),
    Sketcher.Constraint("Block", 20),
    Sketcher.Constraint("Block", 26),
    Sketcher.Constraint("Block", 27),
    Sketcher.Constraint("Block", 28),
    Sketcher.Constraint("Block", 29),
    Sketcher.Constraint("Block", 30),
    Sketcher.Constraint("Block", 31),
    Sketcher.Constraint("Block", 32),
    Sketcher.Constraint("Block", 33),
    Sketcher.Constraint("Block", 34),
    Sketcher.Constraint("Block", 35),
    Sketcher.Constraint("Block", 36),
    Sketcher.Constraint("Block", 37),
    Sketcher.Constraint("Block", 38),
    Sketcher.Constraint("Block", 39),
    Sketcher.Constraint("Block", 40),
    Sketcher.Constraint("Block", 41),
    Sketcher.Constraint("Coincident", 16, 2, 17, 2),
    Sketcher.Constraint("Coincident", 20, 1, 21, 1),
    Sketcher.Constraint("Coincident", 21, 2, 22, 1),
    Sketcher.Constraint("Coincident", 22, 2, 23, 1),
    Sketcher.Constraint("Coincident", 23, 2, 24, 1),
    Sketcher.Constraint("Coincident", 24, 2, 25, 1),
    Sketcher.Constraint("Coincident", 25, 2, 26, 2),
    Sketcher.Constraint("Coincident", 29, 1, 16, 1),
    Sketcher.Constraint("Horizontal", 0),
    Sketcher.Constraint("Vertical", 1),
    Sketcher.Constraint("Horizontal", 2),
    Sketcher.Constraint("Vertical", 3),
    Sketcher.Constraint("Horizontal", 4),
    Sketcher.Constraint("Vertical", 5),
    Sketcher.Constraint("Horizontal", 6),
    Sketcher.Constraint("Vertical", 7),
    Sketcher.Constraint("Vertical", 8),
    Sketcher.Constraint("Horizontal", 9),
    Sketcher.Constraint("Vertical", 10),
    Sketcher.Constraint("Horizontal", 11),
    Sketcher.Constraint("Vertical", 12),
    Sketcher.Constraint("Horizontal", 13),
    Sketcher.Constraint("Vertical", 14),
    Sketcher.Constraint("Horizontal", 15),
    Sketcher.Constraint("Horizontal", 22),
    Sketcher.Constraint("Vertical", 23),
    Sketcher.Constraint("Horizontal", 24),
    Sketcher.Constraint("Horizontal", 0, 2, 3, 2),
    Sketcher.Constraint("Horizontal", 7, 2, 21, 2),
    Sketcher.Constraint("Horizontal", 2, 2, 23, 2),
    Sketcher.Constraint("Vertical", 11, 2, 12, 2),
    Sketcher.Constraint("Vertical", 10, 2, 13, 2),
    Sketcher.Constraint("Equal", 0, 4),
    Sketcher.Constraint("Equal", 10, 12),
    Sketcher.Constraint("DistanceX", 4, 2, 0, 2, Q("1 mm")),
    Sketcher.Constraint("DistanceY", 5, 2, 2, 2, Q("2 mm")),
    Sketcher.Constraint("DistanceX", 0, 1, 0, 2, Q("0.560976 mm")),
    Sketcher.Constraint("DistanceX", 9, 1, 9, 2, Q("1.341463 mm")),
    Sketcher.Constraint("DistanceX", 22, 1, 22, 2, Q("0.727515 mm")),
    Sketcher.Constraint("DistanceX", 24, 2, 24, 1, Q("1.070503 mm")),
    Sketcher.Constraint("DistanceY", 1, 1, 1, 2, Q("0.341463 mm")),
    Sketcher.Constraint("DistanceY", 8, 2, 8, 1, Q("0.268293 mm")),
    Sketcher.Constraint("DistanceX", 9, 2, -1, 1, Q("0.331641 mm")),
    Sketcher.Constraint("DistanceY", 10, 2, -1, 1, Q("8.100281 mm")),
    Sketcher.Constraint("DistanceY", 12, 2, -1, 1, Q("8.978329 mm")),
    Sketcher.Constraint("DistanceX", -1, 1, 21, 2, Q("0.672551 mm")),
    Sketcher.Constraint("DistanceY", 8, 2, 1, 2, Q("1.02439 mm")),
    Sketcher.Constraint("DistanceX", 7, 2, 8, 2, Q("0.926829 mm")),
])
pocket3 = body.newObject("PartDesign::Pocket", "Pocket002")
pocket3.Profile = sketch5
pocket3.Length = 0.3

doc.recompute()
